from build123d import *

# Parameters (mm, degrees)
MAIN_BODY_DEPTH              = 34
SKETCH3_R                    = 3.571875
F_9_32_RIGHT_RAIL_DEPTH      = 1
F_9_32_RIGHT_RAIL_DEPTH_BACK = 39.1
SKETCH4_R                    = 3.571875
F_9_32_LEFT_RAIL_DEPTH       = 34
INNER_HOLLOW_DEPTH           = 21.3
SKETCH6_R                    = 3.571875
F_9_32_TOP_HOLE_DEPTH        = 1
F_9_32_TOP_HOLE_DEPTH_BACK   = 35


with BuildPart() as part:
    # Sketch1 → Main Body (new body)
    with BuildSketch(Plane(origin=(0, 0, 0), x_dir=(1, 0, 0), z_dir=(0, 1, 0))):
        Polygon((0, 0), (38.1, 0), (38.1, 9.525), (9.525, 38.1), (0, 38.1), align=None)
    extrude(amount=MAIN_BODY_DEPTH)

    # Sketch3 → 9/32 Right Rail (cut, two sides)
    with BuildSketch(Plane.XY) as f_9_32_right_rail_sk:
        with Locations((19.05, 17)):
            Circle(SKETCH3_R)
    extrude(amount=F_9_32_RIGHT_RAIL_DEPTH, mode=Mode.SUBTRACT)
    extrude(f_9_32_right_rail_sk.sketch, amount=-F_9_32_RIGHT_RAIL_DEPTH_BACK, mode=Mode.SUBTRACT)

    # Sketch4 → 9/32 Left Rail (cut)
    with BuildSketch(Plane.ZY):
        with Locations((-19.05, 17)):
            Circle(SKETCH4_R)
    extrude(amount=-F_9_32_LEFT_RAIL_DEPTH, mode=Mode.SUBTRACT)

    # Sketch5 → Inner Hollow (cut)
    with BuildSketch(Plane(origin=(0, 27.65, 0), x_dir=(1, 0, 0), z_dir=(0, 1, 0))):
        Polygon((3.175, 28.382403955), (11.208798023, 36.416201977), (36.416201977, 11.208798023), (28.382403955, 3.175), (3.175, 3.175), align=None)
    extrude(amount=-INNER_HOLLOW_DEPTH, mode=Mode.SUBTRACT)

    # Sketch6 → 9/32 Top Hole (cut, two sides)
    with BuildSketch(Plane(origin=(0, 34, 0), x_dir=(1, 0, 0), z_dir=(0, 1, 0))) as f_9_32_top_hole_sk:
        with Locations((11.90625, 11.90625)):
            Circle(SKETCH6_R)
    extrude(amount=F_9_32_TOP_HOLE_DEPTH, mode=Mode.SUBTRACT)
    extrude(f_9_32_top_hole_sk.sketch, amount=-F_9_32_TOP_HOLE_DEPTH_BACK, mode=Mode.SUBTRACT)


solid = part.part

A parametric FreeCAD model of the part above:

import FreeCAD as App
import Part
import Sketcher

V = App.Vector

doc = App.newDocument("Part")
body = doc.addObject("PartDesign::Body", "Body")

# Sketch on XZ plane
sketch1 = doc.addObject("Sketcher::SketchObject", "Sketch")
body.addObject(sketch1)
sketch1.AttachmentSupport = (doc.XZ_Plane, [""])
sketch1.MapMode = "FlatFace"
sketch1.addGeometry([
    Part.LineSegment(V(0, 0, 0), V(38.1, 0, 0)),  # 0
    Part.LineSegment(V(38.1, 0, 0), V(38.1, -9.525, 0)),  # 1
    Part.LineSegment(V(38.1, -9.525, 0), V(9.525, -38.1, 0)),  # 2
    Part.LineSegment(V(9.525, -38.1, 0), V(0, -38.1, 0)),  # 3
    Part.LineSegment(V(0, -38.1, 0), V(0, 0, 0)),  # 4
], False)
sketch1.addConstraint([
    Sketcher.Constraint("Coincident", 0, 2, 1, 1),
    Sketcher.Constraint("Coincident", 1, 2, 2, 1),
    Sketcher.Constraint("Coincident", 2, 2, 3, 1),
    Sketcher.Constraint("Coincident", 3, 2, 4, 1),
    Sketcher.Constraint("Coincident", 4, 2, 0, 1),
    Sketcher.Constraint("Horizontal", 0),
    Sketcher.Constraint("Vertical", 1),
    Sketcher.Constraint("Horizontal", 3),
    Sketcher.Constraint("Vertical", 4),
    Sketcher.Constraint("Coincident", 4, 2, -1, 1),
    Sketcher.Constraint("Equal", 3, 1),
    Sketcher.Constraint("Equal", 0, 4),
    Sketcher.Constraint("DistanceX", 0, 1, 0, 2, 38.1),
    Sketcher.Constraint("DistanceX", 3, 2, 3, 1, 9.525),
])
pad1 = doc.addObject("PartDesign::Pad", "Pad")
body.addObject(pad1)
pad1.Profile = sketch1
pad1.Length = 34
pad1.Reversed = True

# Sketch on XY plane
sketch2 = doc.addObject("Sketcher::SketchObject", "Sketch001")
body.addObject(sketch2)
sketch2.AttachmentSupport = (doc.XY_Plane, [""])
sketch2.MapMode = "FlatFace"
sketch2.addGeometry(Part.Circle(V(19.05, 17, 0), V(0, 0, 1), 3.571875), False)
sketch2.addConstraint([
    Sketcher.Constraint("DistanceY", -1, 1, 0, 3, 17.0),
    Sketcher.Constraint("Diameter", 0, 7.14375),
    Sketcher.Constraint("DistanceX", -1, 1, 0, 3, 19.05),
])
pocket1 = doc.addObject("PartDesign::Pocket", "Pocket")
body.addObject(pocket1)
pocket1.Profile = sketch2
pocket1.Type = "ThroughAll"
pocket1.Midplane = True

# Sketch on YZ plane
sketch3 = doc.addObject("Sketcher::SketchObject", "Sketch002")
body.addObject(sketch3)
sketch3.AttachmentSupport = (doc.YZ_Plane, [""])
sketch3.MapMode = "FlatFace"
sketch3.addGeometry(Part.Circle(V(17, -19.05, 0), V(0, 0, 1), 3.571875), False)
sketch3.addConstraint([
    Sketcher.Constraint("DistanceX", -1, 1, 0, 3, 17.0),
    Sketcher.Constraint("Diameter", 0, 7.14375),
    Sketcher.Constraint("DistanceY", 0, 3, -1, 1, 19.05),
])
pocket2 = doc.addObject("PartDesign::Pocket", "Pocket001")
body.addObject(pocket2)
pocket2.Profile = sketch3
pocket2.Length = 34
pocket2.Reversed = True

# Sketch on XZ plane
sketch4 = doc.addObject("Sketcher::SketchObject", "Sketch003")
body.addObject(sketch4)
sketch4.AttachmentSupport = (doc.XZ_Plane, [""])
sketch4.MapMode = "FlatFace"
sketch4.AttachmentOffset = App.Placement(V(0, 0, -27.65), App.Rotation())
sketch4.addGeometry([
    Part.LineSegment(V(11.208798, -36.416202, 0), V(3.175, -28.382404, 0)),  # 0
    Part.LineSegment(V(3.175, -28.382404, 0), V(3.175, -3.175, 0)),  # 1
    Part.LineSegment(V(3.175, -3.175, 0), V(28.382404, -3.175, 0)),  # 2
    Part.LineSegment(V(28.382404, -3.175, 0), V(36.416202, -11.208798, 0)),  # 3
    Part.LineSegment(V(36.416202, -11.208798, 0), V(11.208798, -36.416202, 0)),  # 4
], False)
sketch4.addConstraint([
    Sketcher.Constraint("Coincident", 0, 2, 1, 1),
    Sketcher.Constraint("Coincident", 1, 2, 2, 1),
    Sketcher.Constraint("Coincident", 2, 2, 3, 1),
    Sketcher.Constraint("Coincident", 3, 2, 4, 1),
    Sketcher.Constraint("Coincident", 4, 2, 0, 1),
    Sketcher.Constraint("Vertical", 1),
    Sketcher.Constraint("Horizontal", 2),
    Sketcher.Constraint("Parallel", 0, 3),
    Sketcher.Constraint("Perpendicular", 3, 4),
    Sketcher.Constraint("Equal", 2, 1),
    Sketcher.Constraint("Equal", 0, 3),
    Sketcher.Constraint("DistanceX", -1, 1, 0, 2, 3.175),
    Sketcher.Constraint("DistanceY", 1, 2, -1, 1, 3.175),
    Sketcher.Constraint("DistanceX", -1, 1, 3, 2, 36.416202),
    Sketcher.Constraint("DistanceY", 3, 2, -1, 1, 11.208798),
])
pocket3 = doc.addObject("PartDesign::Pocket", "Pocket002")
body.addObject(pocket3)
pocket3.Profile = sketch4
pocket3.Length = 21.3
pocket3.Reversed = True

# Sketch on XZ plane
sketch5 = doc.addObject("Sketcher::SketchObject", "Sketch004")
body.addObject(sketch5)
sketch5.AttachmentSupport = (doc.XZ_Plane, [""])
sketch5.MapMode = "FlatFace"
sketch5.AttachmentOffset = App.Placement(V(0, 0, -34), App.Rotation())
sketch5.addGeometry(Part.Circle(V(11.90625, -11.90625, 0), V(0, 0, 1), 3.571875), False)
sketch5.addConstraint([
    Sketcher.Constraint("Diameter", 0, 7.14375),
    Sketcher.Constraint("DistanceX", -1, 1, 0, 3, 11.90625),
    Sketcher.Constraint("DistanceY", 0, 3, -1, 1, 11.90625),
])
pocket4 = doc.addObject("PartDesign::Pocket", "Pocket003")
body.addObject(pocket4)
pocket4.Profile = sketch5
pocket4.Type = "ThroughAll"
pocket4.Midplane = True

doc.recompute()
